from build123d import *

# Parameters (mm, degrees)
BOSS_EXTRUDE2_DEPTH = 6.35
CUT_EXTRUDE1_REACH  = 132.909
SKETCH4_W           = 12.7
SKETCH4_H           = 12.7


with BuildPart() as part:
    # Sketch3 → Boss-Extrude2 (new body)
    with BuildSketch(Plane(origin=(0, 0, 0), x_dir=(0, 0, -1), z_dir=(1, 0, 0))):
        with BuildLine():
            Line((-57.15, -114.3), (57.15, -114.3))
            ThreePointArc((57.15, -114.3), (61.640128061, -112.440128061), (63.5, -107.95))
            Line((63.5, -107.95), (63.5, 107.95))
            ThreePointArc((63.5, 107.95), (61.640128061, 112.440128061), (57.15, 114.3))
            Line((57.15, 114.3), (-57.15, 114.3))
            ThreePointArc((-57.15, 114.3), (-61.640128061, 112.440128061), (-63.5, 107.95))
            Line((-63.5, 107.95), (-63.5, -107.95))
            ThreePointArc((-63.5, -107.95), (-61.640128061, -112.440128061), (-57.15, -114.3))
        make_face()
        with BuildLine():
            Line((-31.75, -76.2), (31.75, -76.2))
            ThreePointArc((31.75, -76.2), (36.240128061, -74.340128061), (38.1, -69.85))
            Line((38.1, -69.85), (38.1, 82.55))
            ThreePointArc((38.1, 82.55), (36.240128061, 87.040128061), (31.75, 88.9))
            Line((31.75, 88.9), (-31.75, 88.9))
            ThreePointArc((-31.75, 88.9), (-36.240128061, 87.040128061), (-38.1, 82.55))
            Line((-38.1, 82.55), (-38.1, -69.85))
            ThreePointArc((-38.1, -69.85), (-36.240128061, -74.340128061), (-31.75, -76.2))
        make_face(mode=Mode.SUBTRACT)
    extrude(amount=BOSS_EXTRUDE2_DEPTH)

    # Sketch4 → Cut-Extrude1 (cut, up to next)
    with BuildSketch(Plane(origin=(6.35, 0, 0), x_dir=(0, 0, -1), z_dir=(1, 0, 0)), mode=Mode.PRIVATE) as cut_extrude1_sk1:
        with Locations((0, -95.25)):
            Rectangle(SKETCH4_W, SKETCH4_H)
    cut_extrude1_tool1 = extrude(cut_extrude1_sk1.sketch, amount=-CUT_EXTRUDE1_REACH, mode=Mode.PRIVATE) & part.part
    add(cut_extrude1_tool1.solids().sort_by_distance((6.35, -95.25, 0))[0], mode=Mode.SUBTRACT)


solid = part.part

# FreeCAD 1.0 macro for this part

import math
import FreeCAD as App
import Part
import Sketcher
from FreeCAD import Vector
Q = App.Units.Quantity

doc = App.newDocument("Part")
body = doc.addObject("PartDesign::Body", "Body")

# Sketch on YZ plane
sketch1 = body.newObject("Sketcher::SketchObject", "Sketch")
sketch1.AttachmentSupport = (doc.getObject("YZ_Plane"), [""])
sketch1.MapMode = "FlatFace"
sketch1.addGeometry(Part.LineSegment(Vector(-114.3, 57.15, 0), Vector(-114.3, -57.15, 0)), False)
sketch1.addGeometry(Part.ArcOfCircle(Part.Circle(Vector(-107.95, -57.15, 0), Vector(0, 0, 1), 6.35), math.radians(180), math.radians(270)), False)
sketch1.addGeometry(Part.LineSegment(Vector(-107.95, -63.5, 0), Vector(107.95, -63.5, 0)), False)
sketch1.addGeometry(Part.ArcOfCircle(Part.Circle(Vector(107.95, -57.15, 0), Vector(0, 0, 1), 6.35), math.radians(-90), math.radians(0)), False)
sketch1.addGeometry(Part.LineSegment(Vector(114.3, -57.15, 0), Vector(114.3, 57.15, 0)), False)
sketch1.addGeometry(Part.ArcOfCircle(Part.Circle(Vector(107.95, 57.15, 0), Vector(0, 0, 1), 6.35), math.radians(0), math.radians(90)), False)
sketch1.addGeometry(Part.LineSegment(Vector(107.95, 63.5, 0), Vector(-107.95, 63.5, 0)), False)
sketch1.addGeometry(Part.ArcOfCircle(Part.Circle(Vector(-107.95, 57.15, 0), Vector(0, 0, 1), 6.35), math.radians(90), math.radians(180)), False)
sketch1.addGeometry(Part.LineSegment(Vector(-76.2, -31.75, 0), Vector(-76.2, 31.75, 0)), False)
sketch1.addGeometry(Part.ArcOfCircle(Part.Circle(Vector(-69.85, 31.75, 0), Vector(0, 0, 1), 6.35), math.radians(90), math.radians(180)), False)
sketch1.addGeometry(Part.LineSegment(Vector(-69.85, 38.1, 0), Vector(82.55, 38.1, 0)), False)
sketch1.addGeometry(Part.ArcOfCircle(Part.Circle(Vector(82.55, 31.75, 0), Vector(0, 0, 1), 6.35), math.radians(0), math.radians(90)), False)
sketch1.addGeometry(Part.LineSegment(Vector(88.9, 31.75, 0), Vector(88.9, -31.75, 0)), False)
sketch1.addGeometry(Part.ArcOfCircle(Part.Circle(Vector(82.55, -31.75, 0), Vector(0, 0, 1), 6.35), math.radians(-90), math.radians(0)), False)
sketch1.addGeometry(Part.LineSegment(Vector(82.55, -38.1, 0), Vector(-69.85, -38.1, 0)), False)
sketch1.addGeometry(Part.ArcOfCircle(Part.Circle(Vector(-69.85, -31.75, 0), Vector(0, 0, 1), 6.35), math.radians(180), math.radians(270)), False)
sketch1.addConstraint(Sketcher.Constraint("Tangent", 0, 2, 1, 1))
sketch1.addConstraint(Sketcher.Constraint("Tangent", 1, 2, 2, 1))
sketch1.addConstraint(Sketcher.Constraint("Tangent", 2, 2, 3, 1))
sketch1.addConstraint(Sketcher.Constraint("Tangent", 3, 2, 4, 1))
sketch1.addConstraint(Sketcher.Constraint("Tangent", 4, 2, 5, 1))
sketch1.addConstraint(Sketcher.Constraint("Tangent", 5, 2, 6, 1))
sketch1.addConstraint(Sketcher.Constraint("Tangent", 6, 2, 7, 1))
sketch1.addConstraint(Sketcher.Constraint("Tangent", 7, 2, 0, 1))
sketch1.addConstraint(Sketcher.Constraint("Tangent", 8, 2, 9, 2))
sketch1.addConstraint(Sketcher.Constraint("Tangent", 9, 1, 10, 1))
sketch1.addConstraint(Sketcher.Constraint("Tangent", 10, 2, 11, 2))
sketch1.addConstraint(Sketcher.Constraint("Tangent", 11, 1, 12, 1))
sketch1.addConstraint(Sketcher.Constraint("Tangent", 12, 2, 13, 2))
sketch1.addConstraint(Sketcher.Constraint("Tangent", 13, 1, 14, 1))
sketch1.addConstraint(Sketcher.Constraint("Tangent", 14, 2, 15, 2))
sketch1.addConstraint(Sketcher.Constraint("Tangent", 15, 1, 8, 1))
sketch1.addConstraint(Sketcher.Constraint("Vertical", 0))
sketch1.addConstraint(Sketcher.Constraint("Horizontal", 2))
sketch1.addConstraint(Sketcher.Constraint("Vertical", 4))
sketch1.addConstraint(Sketcher.Constraint("Horizontal", 6))
sketch1.addConstraint(Sketcher.Constraint("Vertical", 8))
sketch1.addConstraint(Sketcher.Constraint("Horizontal", 10))
sketch1.addConstraint(Sketcher.Constraint("Vertical", 12))
sketch1.addConstraint(Sketcher.Constraint("Horizontal", 14))
sketch1.addConstraint(Sketcher.Constraint("Equal", 1, 3))
sketch1.addConstraint(Sketcher.Constraint("Equal", 3, 5))
sketch1.addConstraint(Sketcher.Constraint("Equal", 5, 7))
sketch1.addConstraint(Sketcher.Constraint("Equal", 7, 9))
sketch1.addConstraint(Sketcher.Constraint("Equal", 9, 11))
sketch1.addConstraint(Sketcher.Constraint("Equal", 11, 13))
sketch1.addConstraint(Sketcher.Constraint("Equal", 13, 15))
sketch1.addConstraint(Sketcher.Constraint("Symmetric", 1, 3, 5, 3, -1, 1))
sketch1.addConstraint(Sketcher.Constraint("DistanceX", 10, 1, 10, 2, Q("6 in")))
sketch1.addConstraint(Sketcher.Constraint("Radius", 1, Q("0.25 in")))
sketch1.addConstraint(Sketcher.Constraint("DistanceX", 2, 1, 2, 2, Q("8.5 in")))
sketch1.addConstraint(Sketcher.Constraint("DistanceY", 0, 2, 0, 1, Q("4.5 in")))
sketch1.addConstraint(Sketcher.Constraint("DistanceY", 8, 1, 8, 2, Q("2.5 in")))
sketch1.addConstraint(Sketcher.Constraint("DistanceX", 8, 2, -1, 1, Q("3 in")))
sketch1.addConstraint(Sketcher.Constraint("DistanceY", 9, 3, 7, 3, Q("1 in")))
pad1 = body.newObject("PartDesign::Pad", "Pad")
pad1.Profile = sketch1
pad1.Length = Q("0.25 in")

# Sketch on YZ plane
sketch2 = body.newObject("Sketcher::SketchObject", "Sketch001")
sketch2.AttachmentSupport = (doc.getObject("YZ_Plane"), [""])
sketch2.MapMode = "FlatFace"
sketch2.AttachmentOffset = App.Placement(Vector(0, 0, 0.25 * 25.4), App.Rotation())
sketch2.addGeometry(Part.LineSegment(Vector(-88.9, 6.35, 0), Vector(-101.6, 6.35, 0)), False)
sketch2.addGeometry(Part.LineSegment(Vector(-101.6, 6.35, 0), Vector(-101.6, -6.35, 0)), False)
sketch2.addGeometry(Part.LineSegment(Vector(-101.6, -6.35, 0), Vector(-88.9, -6.35, 0)), False)
sketch2.addGeometry(Part.LineSegment(Vector(-88.9, -6.35, 0), Vector(-88.9, 6.35, 0)), False)
sketch2.addConstraint(Sketcher.Constraint("Coincident", 0, 2, 1, 1))
sketch2.addConstraint(Sketcher.Constraint("Coincident", 1, 2, 2, 1))
sketch2.addConstraint(Sketcher.Constraint("Coincident", 2, 2, 3, 1))
sketch2.addConstraint(Sketcher.Constraint("Coincident", 3, 2, 0, 1))
sketch2.addConstraint(Sketcher.Constraint("Horizontal", 0))
sketch2.addConstraint(Sketcher.Constraint("Vertical", 1))
sketch2.addConstraint(Sketcher.Constraint("Horizontal", 2))
sketch2.addConstraint(Sketcher.Constraint("Vertical", 3))
sketch2.addConstraint(Sketcher.Constraint("Equal", 2, 1))
sketch2.addConstraint(Sketcher.Constraint("DistanceX", 0, 2, 0, 1, Q("0.5 in")))
sketch2.addConstraint(Sketcher.Constraint("DistanceX", 0, 2, -1, 1, Q("4 in")))
sketch2.addConstraint(Sketcher.Constraint("DistanceY", -1, 1, 0, 2, Q("0.25 in")))
pocket1 = body.newObject("PartDesign::Pocket", "Pocket")
pocket1.Profile = sketch2
pocket1.Type = "UpToFirst"

doc.recompute()
